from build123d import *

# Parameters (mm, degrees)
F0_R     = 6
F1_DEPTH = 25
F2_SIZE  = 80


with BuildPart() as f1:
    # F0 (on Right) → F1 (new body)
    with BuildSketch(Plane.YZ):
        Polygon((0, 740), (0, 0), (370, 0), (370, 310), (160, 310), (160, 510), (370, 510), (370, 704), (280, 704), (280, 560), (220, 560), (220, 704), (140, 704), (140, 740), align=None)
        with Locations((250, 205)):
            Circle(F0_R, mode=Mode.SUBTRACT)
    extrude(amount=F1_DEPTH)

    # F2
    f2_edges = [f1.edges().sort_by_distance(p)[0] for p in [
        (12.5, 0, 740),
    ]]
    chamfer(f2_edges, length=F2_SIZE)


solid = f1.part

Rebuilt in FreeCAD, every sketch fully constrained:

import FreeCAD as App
import Part
import Sketcher
from FreeCAD import Vector


def edges_at(feature, points):
    """Names of the edges that pass closest to the given points."""
    edges = feature.Shape.Edges
    near = lambda p: min(range(len(edges)), key=lambda i: edges[i].distToShape(Part.Vertex(*p))[0])
    return sorted({f"Edge{near(p) + 1}" for p in points})

doc = App.newDocument("Part")
body = doc.addObject("PartDesign::Body", "Body")

# Sketch on YZ plane
sketch1 = body.newObject("Sketcher::SketchObject", "Sketch")
sketch1.AttachmentSupport = (doc.getObject("YZ_Plane"), [""])
sketch1.MapMode = "FlatFace"
sketch1.addGeometry(Part.LineSegment(Vector(0, 740, 0), Vector(0, 0, 0)), False)
sketch1.addGeometry(Part.LineSegment(Vector(0, 0, 0), Vector(370, 0, 0)), False)
sketch1.addGeometry(Part.LineSegment(Vector(370, 0, 0), Vector(370, 310, 0)), False)
sketch1.addGeometry(Part.LineSegment(Vector(370, 310, 0), Vector(160, 310, 0)), False)
sketch1.addGeometry(Part.LineSegment(Vector(160, 310, 0), Vector(160, 510, 0)), False)
sketch1.addGeometry(Part.LineSegment(Vector(160, 510, 0), Vector(370, 510, 0)), False)
sketch1.addGeometry(Part.LineSegment(Vector(370, 510, 0), Vector(370, 704, 0)), False)
sketch1.addGeometry(Part.LineSegment(Vector(370, 704, 0), Vector(280, 704, 0)), False)
sketch1.addGeometry(Part.LineSegment(Vector(280, 704, 0), Vector(280, 560, 0)), False)
sketch1.addGeometry(Part.LineSegment(Vector(280, 560, 0), Vector(220, 560, 0)), False)
sketch1.addGeometry(Part.LineSegment(Vector(220, 560, 0), Vector(220, 704, 0)), False)
sketch1.addGeometry(Part.LineSegment(Vector(220, 704, 0), Vector(140, 704, 0)), False)
sketch1.addGeometry(Part.LineSegment(Vector(140, 704, 0), Vector(140, 740, 0)), False)
sketch1.addGeometry(Part.LineSegment(Vector(140, 740, 0), Vector(0, 740, 0)), False)
sketch1.addGeometry(Part.Circle(Vector(250, 205, 0), Vector(0, 0, 1), 6), False)
sketch1.addConstraint(Sketcher.Constraint("Coincident", 0, 2, 1, 1))
sketch1.addConstraint(Sketcher.Constraint("Coincident", 1, 2, 2, 1))
sketch1.addConstraint(Sketcher.Constraint("Coincident", 2, 2, 3, 1))
sketch1.addConstraint(Sketcher.Constraint("Coincident", 3, 2, 4, 1))
sketch1.addConstraint(Sketcher.Constraint("Coincident", 4, 2, 5, 1))
sketch1.addConstraint(Sketcher.Constraint("Coincident", 5, 2, 6, 1))
sketch1.addConstraint(Sketcher.Constraint("Coincident", 6, 2, 7, 1))
sketch1.addConstraint(Sketcher.Constraint("Coincident", 7, 2, 8, 1))
sketch1.addConstraint(Sketcher.Constraint("Coincident", 8, 2, 9, 1))
sketch1.addConstraint(Sketcher.Constraint("Coincident", 9, 2, 10, 1))
sketch1.addConstraint(Sketcher.Constraint("Coincident", 10, 2, 11, 1))
sketch1.addConstraint(Sketcher.Constraint("Coincident", 11, 2, 12, 1))
sketch1.addConstraint(Sketcher.Constraint("Coincident", 12, 2, 13, 1))
sketch1.addConstraint(Sketcher.Constraint("Coincident", 13, 2, 0, 1))
sketch1.addConstraint(Sketcher.Constraint("Vertical", 0))
sketch1.addConstraint(Sketcher.Constraint("Horizontal", 1))
sketch1.addConstraint(Sketcher.Constraint("Vertical", 2))
sketch1.addConstraint(Sketcher.Constraint("Horizontal", 3))
sketch1.addConstraint(Sketcher.Constraint("Vertical", 4))
sketch1.addConstraint(Sketcher.Constraint("Horizontal", 5))
sketch1.addConstraint(Sketcher.Constraint("Vertical", 6))
sketch1.addConstraint(Sketcher.Constraint("Horizontal", 7))
sketch1.addConstraint(Sketcher.Constraint("Vertical", 8))
sketch1.addConstraint(Sketcher.Constraint("Horizontal", 9))
sketch1.addConstraint(Sketcher.Constraint("Vertical", 10))
sketch1.addConstraint(Sketcher.Constraint("Horizontal", 11))
sketch1.addConstraint(Sketcher.Constraint("Vertical", 12))
sketch1.addConstraint(Sketcher.Constraint("Horizontal", 13))
sketch1.addConstraint(Sketcher.Constraint("Coincident", 0, 2, -1, 1))
sketch1.addConstraint(Sketcher.Constraint("Horizontal", 7, 2, 10, 2))
sketch1.addConstraint(Sketcher.Constraint("Vertical", 2, 2, 5, 2))
sketch1.addConstraint(Sketcher.Constraint("Diameter", 14, 12.0))
sketch1.addConstraint(Sketcher.Constraint("DistanceX", 1, 1, 1, 2, 370.0))
sketch1.addConstraint(Sketcher.Constraint("DistanceX", 3, 2, 3, 1, 210.0))
sketch1.addConstraint(Sketcher.Constraint("DistanceX", 7, 2, 7, 1, 90.0))
sketch1.addConstraint(Sketcher.Constraint("DistanceX", 9, 2, 9, 1, 60.0))
sketch1.addConstraint(Sketcher.Constraint("DistanceX", 11, 2, 11, 1, 80.0))
sketch1.addConstraint(Sketcher.Constraint("DistanceY", 0, 2, 0, 1, 740.0))
sketch1.addConstraint(Sketcher.Constraint("DistanceY", 2, 1, 2, 2, 310.0))
sketch1.addConstraint(Sketcher.Constraint("DistanceY", 4, 1, 4, 2, 200.0))
sketch1.addConstraint(Sketcher.Constraint("DistanceY", 6, 1, 6, 2, 194.0))
sketch1.addConstraint(Sketcher.Constraint("DistanceY", 8, 2, 8, 1, 144.0))
sketch1.addConstraint(Sketcher.Constraint("DistanceX", -1, 1, 14, 3, 250.0))
sketch1.addConstraint(Sketcher.Constraint("DistanceY", -1, 1, 14, 3, 205.0))
pad1 = body.newObject("PartDesign::Pad", "Pad")
pad1.Profile = sketch1
pad1.Length = 25
doc.recompute()

chamfer = body.newObject("PartDesign::Chamfer", "Chamfer")
chamfer.Base = (pad1, edges_at(pad1, [(12.5, 0, 740)]))
chamfer.Size = 80

doc.recompute()
